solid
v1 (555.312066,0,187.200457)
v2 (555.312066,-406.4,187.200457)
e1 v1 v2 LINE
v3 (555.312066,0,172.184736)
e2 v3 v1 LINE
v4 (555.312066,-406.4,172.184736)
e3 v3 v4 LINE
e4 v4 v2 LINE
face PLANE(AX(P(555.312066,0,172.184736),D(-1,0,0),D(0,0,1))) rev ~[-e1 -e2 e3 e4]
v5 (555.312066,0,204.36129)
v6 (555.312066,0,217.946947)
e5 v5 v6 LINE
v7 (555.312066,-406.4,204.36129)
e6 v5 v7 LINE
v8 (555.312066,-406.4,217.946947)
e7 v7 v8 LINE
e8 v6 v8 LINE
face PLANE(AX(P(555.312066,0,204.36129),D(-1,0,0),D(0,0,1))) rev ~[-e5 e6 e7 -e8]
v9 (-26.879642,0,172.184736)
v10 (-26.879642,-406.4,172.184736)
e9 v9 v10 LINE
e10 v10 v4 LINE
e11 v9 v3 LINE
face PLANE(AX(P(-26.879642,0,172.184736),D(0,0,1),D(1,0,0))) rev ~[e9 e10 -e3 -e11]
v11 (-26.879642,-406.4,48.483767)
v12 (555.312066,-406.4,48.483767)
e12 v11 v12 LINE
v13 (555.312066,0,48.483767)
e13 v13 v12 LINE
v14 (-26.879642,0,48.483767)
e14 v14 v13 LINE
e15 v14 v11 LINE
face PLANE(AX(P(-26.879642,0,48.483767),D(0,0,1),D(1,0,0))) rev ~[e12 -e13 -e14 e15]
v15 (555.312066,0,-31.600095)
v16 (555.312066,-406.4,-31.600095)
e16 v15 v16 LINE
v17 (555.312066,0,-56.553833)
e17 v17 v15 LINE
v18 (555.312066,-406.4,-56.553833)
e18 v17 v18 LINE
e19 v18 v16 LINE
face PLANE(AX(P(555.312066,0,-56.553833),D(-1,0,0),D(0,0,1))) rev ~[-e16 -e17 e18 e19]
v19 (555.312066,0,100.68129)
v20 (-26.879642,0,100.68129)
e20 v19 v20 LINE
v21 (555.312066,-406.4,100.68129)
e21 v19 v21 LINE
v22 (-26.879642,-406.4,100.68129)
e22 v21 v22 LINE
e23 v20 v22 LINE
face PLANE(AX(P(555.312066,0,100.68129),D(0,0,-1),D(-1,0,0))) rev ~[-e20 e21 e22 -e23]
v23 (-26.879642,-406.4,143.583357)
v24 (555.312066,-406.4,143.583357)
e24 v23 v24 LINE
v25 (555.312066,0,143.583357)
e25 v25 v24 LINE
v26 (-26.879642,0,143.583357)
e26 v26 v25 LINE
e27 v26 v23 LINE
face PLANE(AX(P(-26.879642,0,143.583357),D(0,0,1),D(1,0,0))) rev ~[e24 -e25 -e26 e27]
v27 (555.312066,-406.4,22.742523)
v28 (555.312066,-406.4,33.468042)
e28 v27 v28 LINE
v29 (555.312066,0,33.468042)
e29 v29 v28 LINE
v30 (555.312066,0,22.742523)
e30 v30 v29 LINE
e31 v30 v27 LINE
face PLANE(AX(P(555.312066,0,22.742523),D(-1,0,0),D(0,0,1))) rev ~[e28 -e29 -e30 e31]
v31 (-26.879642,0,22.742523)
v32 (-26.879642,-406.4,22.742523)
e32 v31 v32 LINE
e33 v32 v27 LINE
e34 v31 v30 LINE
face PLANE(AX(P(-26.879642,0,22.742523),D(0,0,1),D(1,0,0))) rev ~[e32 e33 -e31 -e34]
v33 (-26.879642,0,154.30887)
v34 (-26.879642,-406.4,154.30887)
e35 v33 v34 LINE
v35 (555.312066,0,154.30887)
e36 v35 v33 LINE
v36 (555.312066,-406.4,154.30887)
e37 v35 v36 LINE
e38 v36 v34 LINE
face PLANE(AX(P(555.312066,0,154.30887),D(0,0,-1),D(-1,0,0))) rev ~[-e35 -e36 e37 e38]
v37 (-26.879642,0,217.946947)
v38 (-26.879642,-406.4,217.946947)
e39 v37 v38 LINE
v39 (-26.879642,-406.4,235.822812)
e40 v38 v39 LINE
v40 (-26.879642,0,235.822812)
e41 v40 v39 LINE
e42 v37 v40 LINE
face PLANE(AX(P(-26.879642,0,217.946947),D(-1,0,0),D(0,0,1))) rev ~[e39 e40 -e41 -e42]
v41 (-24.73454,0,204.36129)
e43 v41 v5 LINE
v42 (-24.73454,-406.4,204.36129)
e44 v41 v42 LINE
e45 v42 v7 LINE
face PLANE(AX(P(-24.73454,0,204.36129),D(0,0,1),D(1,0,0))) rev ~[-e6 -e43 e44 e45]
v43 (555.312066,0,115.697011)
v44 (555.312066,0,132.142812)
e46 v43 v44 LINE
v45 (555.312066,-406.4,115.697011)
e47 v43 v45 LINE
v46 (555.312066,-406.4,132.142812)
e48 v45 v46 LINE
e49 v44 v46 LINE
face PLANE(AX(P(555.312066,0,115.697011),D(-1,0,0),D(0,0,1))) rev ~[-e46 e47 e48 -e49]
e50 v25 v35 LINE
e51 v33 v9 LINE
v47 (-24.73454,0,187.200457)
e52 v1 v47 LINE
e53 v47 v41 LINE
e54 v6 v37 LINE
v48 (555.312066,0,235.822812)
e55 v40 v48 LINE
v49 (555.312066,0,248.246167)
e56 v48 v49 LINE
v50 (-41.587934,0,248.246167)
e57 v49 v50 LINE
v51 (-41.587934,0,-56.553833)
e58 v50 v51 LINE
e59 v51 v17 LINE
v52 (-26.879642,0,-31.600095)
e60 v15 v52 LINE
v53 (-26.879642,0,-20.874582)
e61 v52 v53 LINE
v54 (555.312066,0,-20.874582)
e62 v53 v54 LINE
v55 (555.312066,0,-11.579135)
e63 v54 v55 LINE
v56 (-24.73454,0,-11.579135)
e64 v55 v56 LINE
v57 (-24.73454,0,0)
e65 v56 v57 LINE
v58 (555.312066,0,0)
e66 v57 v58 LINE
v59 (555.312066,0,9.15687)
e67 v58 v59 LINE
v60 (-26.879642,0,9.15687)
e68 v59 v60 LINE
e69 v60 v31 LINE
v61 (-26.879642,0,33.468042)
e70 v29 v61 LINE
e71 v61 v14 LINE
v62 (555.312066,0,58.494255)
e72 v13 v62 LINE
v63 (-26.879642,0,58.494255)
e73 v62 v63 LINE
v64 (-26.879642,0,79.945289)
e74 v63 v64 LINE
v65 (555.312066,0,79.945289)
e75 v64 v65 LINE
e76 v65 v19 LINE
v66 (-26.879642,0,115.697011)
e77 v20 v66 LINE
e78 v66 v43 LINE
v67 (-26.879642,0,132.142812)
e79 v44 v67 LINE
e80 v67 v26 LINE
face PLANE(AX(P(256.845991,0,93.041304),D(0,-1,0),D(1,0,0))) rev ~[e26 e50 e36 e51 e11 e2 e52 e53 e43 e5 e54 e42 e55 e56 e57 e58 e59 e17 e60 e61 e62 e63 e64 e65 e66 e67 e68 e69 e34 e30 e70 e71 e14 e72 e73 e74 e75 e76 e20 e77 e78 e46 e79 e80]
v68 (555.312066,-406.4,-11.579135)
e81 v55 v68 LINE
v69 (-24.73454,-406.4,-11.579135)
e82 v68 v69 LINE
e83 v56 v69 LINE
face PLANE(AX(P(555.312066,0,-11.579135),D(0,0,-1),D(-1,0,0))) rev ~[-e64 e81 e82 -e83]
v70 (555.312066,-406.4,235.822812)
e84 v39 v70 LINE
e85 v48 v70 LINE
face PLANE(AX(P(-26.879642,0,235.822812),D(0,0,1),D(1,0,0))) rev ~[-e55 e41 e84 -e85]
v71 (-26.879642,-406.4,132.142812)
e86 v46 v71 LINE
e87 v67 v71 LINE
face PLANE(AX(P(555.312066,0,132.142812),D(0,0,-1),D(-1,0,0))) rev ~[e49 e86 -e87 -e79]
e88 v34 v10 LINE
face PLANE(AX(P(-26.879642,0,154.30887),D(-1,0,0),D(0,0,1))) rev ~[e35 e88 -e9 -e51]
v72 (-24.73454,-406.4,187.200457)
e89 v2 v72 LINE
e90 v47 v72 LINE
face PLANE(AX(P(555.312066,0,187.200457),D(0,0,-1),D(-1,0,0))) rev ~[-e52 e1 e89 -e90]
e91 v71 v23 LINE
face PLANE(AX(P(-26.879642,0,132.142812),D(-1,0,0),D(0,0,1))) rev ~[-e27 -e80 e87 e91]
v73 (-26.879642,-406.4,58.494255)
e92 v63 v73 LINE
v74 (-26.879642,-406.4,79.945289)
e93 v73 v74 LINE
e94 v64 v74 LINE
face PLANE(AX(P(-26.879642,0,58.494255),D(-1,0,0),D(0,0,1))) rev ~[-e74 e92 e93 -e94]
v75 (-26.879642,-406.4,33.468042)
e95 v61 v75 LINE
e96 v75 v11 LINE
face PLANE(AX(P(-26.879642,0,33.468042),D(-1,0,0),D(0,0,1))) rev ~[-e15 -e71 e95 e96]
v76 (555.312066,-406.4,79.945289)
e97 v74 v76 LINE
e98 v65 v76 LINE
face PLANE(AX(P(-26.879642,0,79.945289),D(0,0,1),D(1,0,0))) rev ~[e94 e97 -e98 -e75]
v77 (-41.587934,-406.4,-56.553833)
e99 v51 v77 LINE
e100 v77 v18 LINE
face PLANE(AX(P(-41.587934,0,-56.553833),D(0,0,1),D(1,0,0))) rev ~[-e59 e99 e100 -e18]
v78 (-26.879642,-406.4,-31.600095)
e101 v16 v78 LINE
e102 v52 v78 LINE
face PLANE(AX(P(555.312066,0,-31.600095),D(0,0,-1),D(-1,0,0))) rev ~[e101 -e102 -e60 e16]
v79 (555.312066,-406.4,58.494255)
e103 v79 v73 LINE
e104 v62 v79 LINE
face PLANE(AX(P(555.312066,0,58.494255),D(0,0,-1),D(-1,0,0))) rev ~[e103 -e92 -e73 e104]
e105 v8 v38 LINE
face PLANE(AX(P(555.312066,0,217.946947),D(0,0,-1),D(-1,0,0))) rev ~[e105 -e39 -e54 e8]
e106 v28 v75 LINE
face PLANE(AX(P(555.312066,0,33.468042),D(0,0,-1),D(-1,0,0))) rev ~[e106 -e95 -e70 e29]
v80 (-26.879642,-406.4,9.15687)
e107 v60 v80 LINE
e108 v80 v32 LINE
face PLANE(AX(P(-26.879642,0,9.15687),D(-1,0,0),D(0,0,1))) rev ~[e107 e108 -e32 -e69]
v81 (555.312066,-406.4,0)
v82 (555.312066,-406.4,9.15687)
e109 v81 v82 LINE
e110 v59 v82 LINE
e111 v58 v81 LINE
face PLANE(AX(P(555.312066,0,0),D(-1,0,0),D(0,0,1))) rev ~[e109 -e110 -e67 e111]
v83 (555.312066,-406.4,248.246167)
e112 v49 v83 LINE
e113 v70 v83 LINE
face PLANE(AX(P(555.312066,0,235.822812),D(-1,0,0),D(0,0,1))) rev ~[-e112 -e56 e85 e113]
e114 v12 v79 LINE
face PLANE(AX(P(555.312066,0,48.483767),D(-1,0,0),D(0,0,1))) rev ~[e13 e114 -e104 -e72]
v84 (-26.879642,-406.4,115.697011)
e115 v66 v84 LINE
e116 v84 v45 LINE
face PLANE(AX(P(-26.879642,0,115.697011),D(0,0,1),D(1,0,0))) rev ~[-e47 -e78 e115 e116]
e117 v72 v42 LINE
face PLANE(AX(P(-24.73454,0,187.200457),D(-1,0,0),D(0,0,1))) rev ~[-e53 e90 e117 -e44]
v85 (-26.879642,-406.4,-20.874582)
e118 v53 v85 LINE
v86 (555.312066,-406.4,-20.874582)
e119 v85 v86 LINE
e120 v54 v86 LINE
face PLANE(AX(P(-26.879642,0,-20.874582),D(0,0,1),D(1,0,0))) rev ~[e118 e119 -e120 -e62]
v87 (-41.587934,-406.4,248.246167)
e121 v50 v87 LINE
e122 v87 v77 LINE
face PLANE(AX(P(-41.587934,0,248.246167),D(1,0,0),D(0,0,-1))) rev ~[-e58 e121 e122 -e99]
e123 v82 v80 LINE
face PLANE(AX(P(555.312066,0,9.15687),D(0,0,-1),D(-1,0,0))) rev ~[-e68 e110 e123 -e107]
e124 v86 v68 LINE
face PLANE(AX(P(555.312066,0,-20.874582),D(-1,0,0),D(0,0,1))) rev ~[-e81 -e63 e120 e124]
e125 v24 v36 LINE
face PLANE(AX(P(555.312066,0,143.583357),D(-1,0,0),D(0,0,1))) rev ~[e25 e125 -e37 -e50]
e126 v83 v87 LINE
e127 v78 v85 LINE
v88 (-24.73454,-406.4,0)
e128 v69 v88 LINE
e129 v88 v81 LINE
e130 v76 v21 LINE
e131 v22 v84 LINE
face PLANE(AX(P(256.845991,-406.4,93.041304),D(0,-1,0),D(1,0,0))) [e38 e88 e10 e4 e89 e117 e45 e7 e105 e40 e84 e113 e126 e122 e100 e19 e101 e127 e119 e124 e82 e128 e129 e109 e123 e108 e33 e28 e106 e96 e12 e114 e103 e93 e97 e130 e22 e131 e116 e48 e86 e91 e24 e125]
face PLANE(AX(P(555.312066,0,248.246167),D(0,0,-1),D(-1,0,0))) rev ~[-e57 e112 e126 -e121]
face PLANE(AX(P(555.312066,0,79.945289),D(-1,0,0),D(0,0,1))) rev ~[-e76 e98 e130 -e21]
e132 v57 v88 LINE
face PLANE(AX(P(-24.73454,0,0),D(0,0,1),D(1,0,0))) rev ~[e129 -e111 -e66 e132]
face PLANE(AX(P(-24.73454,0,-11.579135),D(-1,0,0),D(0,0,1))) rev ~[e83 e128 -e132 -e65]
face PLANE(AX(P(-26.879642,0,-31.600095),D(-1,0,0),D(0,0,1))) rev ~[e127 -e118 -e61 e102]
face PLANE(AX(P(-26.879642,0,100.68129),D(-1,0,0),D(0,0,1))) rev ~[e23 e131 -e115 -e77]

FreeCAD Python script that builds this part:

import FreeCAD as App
import Part
import Sketcher

V = App.Vector
Q = App.Units.Quantity

doc = App.newDocument("Part")
body = doc.addObject("PartDesign::Body", "Body")

# Sketch on XZ plane
sketch1 = doc.addObject("Sketcher::SketchObject", "Sketch")
body.addObject(sketch1)
sketch1.AttachmentSupport = (doc.XZ_Plane, [""])
sketch1.MapMode = "FlatFace"
sketch1.addGeometry([
    Part.LineSegment(V(555.312066, 248.246167, 0), V(-41.587934, 248.246167, 0)),  # 0
    Part.LineSegment(V(-41.587934, 248.246167, 0), V(-41.587934, -56.553833, 0)),  # 1
    Part.LineSegment(V(-41.587934, -56.553833, 0), V(555.312066, -56.553833, 0)),  # 2
    Part.LineSegment(V(555.312066, -56.553833, 0), V(555.312066, -31.600095, 0)),  # 3
    Part.LineSegment(V(555.312066, -31.600095, 0), V(-26.879642, -31.600095, 0)),  # 4
    Part.LineSegment(V(-26.879642, -31.600095, 0), V(-26.879642, -20.874582, 0)),  # 5
    Part.LineSegment(V(-26.879642, -20.874582, 0), V(555.312066, -20.874582, 0)),  # 6
    Part.LineSegment(V(555.312066, -20.874582, 0), V(555.312066, -11.579135, 0)),  # 7
    Part.LineSegment(V(555.312066, -11.579135, 0), V(-24.73454, -11.579135, 0)),  # 8
    Part.LineSegment(V(-24.73454, -11.579135, 0), V(-24.73454, 0, 0)),  # 9
    Part.LineSegment(V(-24.73454, 0, 0), V(555.312066, 0, 0)),  # 10
    Part.LineSegment(V(555.312066, 0, 0), V(555.312066, 9.15687, 0)),  # 11
    Part.LineSegment(V(555.312066, 9.15687, 0), V(-26.879642, 9.15687, 0)),  # 12
    Part.LineSegment(V(-26.879642, 9.15687, 0), V(-26.879642, 22.742523, 0)),  # 13
    Part.LineSegment(V(-26.879642, 22.742523, 0), V(555.312066, 22.742523, 0)),  # 14
    Part.LineSegment(V(555.312066, 22.742523, 0), V(555.312066, 33.468042, 0)),  # 15
    Part.LineSegment(V(555.312066, 33.468042, 0), V(-26.879642, 33.468042, 0)),  # 16
    Part.LineSegment(V(-26.879642, 33.468042, 0), V(-26.879642, 48.483767, 0)),  # 17
    Part.LineSegment(V(-26.879642, 48.483767, 0), V(555.312066, 48.483767, 0)),  # 18
    Part.LineSegment(V(555.312066, 48.483767, 0), V(555.312066, 58.494255, 0)),  # 19
    Part.LineSegment(V(555.312066, 58.494255, 0), V(-26.879642, 58.494255, 0)),  # 20
    Part.LineSegment(V(-26.879642, 58.494255, 0), V(-26.879642, 79.945289, 0)),  # 21
    Part.LineSegment(V(-26.879642, 79.945289, 0), V(555.312066, 79.945289, 0)),  # 22
    Part.LineSegment(V(555.312066, 79.945289, 0), V(555.312066, 100.68129, 0)),  # 23
    Part.LineSegment(V(555.312066, 100.68129, 0), V(-26.879642, 100.68129, 0)),  # 24
    Part.LineSegment(V(-26.879642, 100.68129, 0), V(-26.879642, 115.697011, 0)),  # 25
    Part.LineSegment(V(-26.879642, 115.697011, 0), V(555.312066, 115.697011, 0)),  # 26
    Part.LineSegment(V(555.312066, 115.697011, 0), V(555.312066, 132.142812, 0)),  # 27
    Part.LineSegment(V(555.312066, 132.142812, 0), V(-26.879642, 132.142812, 0)),  # 28
    Part.LineSegment(V(-26.879642, 132.142812, 0), V(-26.879642, 143.583357, 0)),  # 29
    Part.LineSegment(V(-26.879642, 143.583357, 0), V(555.312066, 143.583357, 0)),  # 30
    Part.LineSegment(V(555.312066, 143.583357, 0), V(555.312066, 154.30887, 0)),  # 31
    Part.LineSegment(V(555.312066, 154.30887, 0), V(-26.879642, 154.30887, 0)),  # 32
    Part.LineSegment(V(-26.879642, 154.30887, 0), V(-26.879642, 172.184736, 0)),  # 33
    Part.LineSegment(V(-26.879642, 172.184736, 0), V(555.312066, 172.184736, 0)),  # 34
    Part.LineSegment(V(555.312066, 172.184736, 0), V(555.312066, 187.200457, 0)),  # 35
    Part.LineSegment(V(555.312066, 187.200457, 0), V(-24.73454, 187.200457, 0)),  # 36
    Part.LineSegment(V(-24.73454, 187.200457, 0), V(-24.73454, 204.36129, 0)),  # 37
    Part.LineSegment(V(-24.73454, 204.36129, 0), V(555.312066, 204.36129, 0)),  # 38
    Part.LineSegment(V(555.312066, 204.36129, 0), V(555.312066, 217.946947, 0)),  # 39
    Part.LineSegment(V(555.312066, 217.946947, 0), V(-26.879642, 217.946947, 0)),  # 40
    Part.LineSegment(V(-26.879642, 217.946947, 0), V(-26.879642, 235.822812, 0)),  # 41
    Part.LineSegment(V(-26.879642, 235.822812, 0), V(555.312066, 235.822812, 0)),  # 42
    Part.LineSegment(V(555.312066, 235.822812, 0), V(555.312066, 248.246167, 0)),  # 43
], False)
sketch1.addConstraint([
    Sketcher.Constraint("Coincident", 0, 2, 1, 1),
    Sketcher.Constraint("Coincident", 1, 2, 2, 1),
    Sketcher.Constraint("Coincident", 2, 2, 3, 1),
    Sketcher.Constraint("Coincident", 3, 2, 4, 1),
    Sketcher.Constraint("Coincident", 4, 2, 5, 1),
    Sketcher.Constraint("Coincident", 5, 2, 6, 1),
    Sketcher.Constraint("Coincident", 6, 2, 7, 1),
    Sketcher.Constraint("Coincident", 7, 2, 8, 1),
    Sketcher.Constraint("Coincident", 8, 2, 9, 1),
    Sketcher.Constraint("Coincident", 9, 2, 10, 1),
    Sketcher.Constraint("Coincident", 10, 2, 11, 1),
    Sketcher.Constraint("Coincident", 11, 2, 12, 1),
    Sketcher.Constraint("Coincident", 12, 2, 13, 1),
    Sketcher.Constraint("Coincident", 13, 2, 14, 1),
    Sketcher.Constraint("Coincident", 14, 2, 15, 1),
    Sketcher.Constraint("Coincident", 15, 2, 16, 1),
    Sketcher.Constraint("Coincident", 16, 2, 17, 1),
    Sketcher.Constraint("Coincident", 17, 2, 18, 1),
    Sketcher.Constraint("Coincident", 18, 2, 19, 1),
    Sketcher.Constraint("Coincident", 19, 2, 20, 1),
    Sketcher.Constraint("Coincident", 20, 2, 21, 1),
    Sketcher.Constraint("Coincident", 21, 2, 22, 1),
    Sketcher.Constraint("Coincident", 22, 2, 23, 1),
    Sketcher.Constraint("Coincident", 23, 2, 24, 1),
    Sketcher.Constraint("Coincident", 24, 2, 25, 1),
    Sketcher.Constraint("Coincident", 25, 2, 26, 1),
    Sketcher.Constraint("Coincident", 26, 2, 27, 1),
    Sketcher.Constraint("Coincident", 27, 2, 28, 1),
    Sketcher.Constraint("Coincident", 28, 2, 29, 1),
    Sketcher.Constraint("Coincident", 29, 2, 30, 1),
    Sketcher.Constraint("Coincident", 30, 2, 31, 1),
    Sketcher.Constraint("Coincident", 31, 2, 32, 1),
    Sketcher.Constraint("Coincident", 32, 2, 33, 1),
    Sketcher.Constraint("Coincident", 33, 2, 34, 1),
    Sketcher.Constraint("Coincident", 34, 2, 35, 1),
    Sketcher.Constraint("Coincident", 35, 2, 36, 1),
    Sketcher.Constraint("Coincident", 36, 2, 37, 1),
    Sketcher.Constraint("Coincident", 37, 2, 38, 1),
    Sketcher.Constraint("Coincident", 38, 2, 39, 1),
    Sketcher.Constraint("Coincident", 39, 2, 40, 1),
    Sketcher.Constraint("Coincident", 40, 2, 41, 1),
    Sketcher.Constraint("Coincident", 41, 2, 42, 1),
    Sketcher.Constraint("Coincident", 42, 2, 43, 1),
    Sketcher.Constraint("Coincident", 43, 2, 0, 1),
    Sketcher.Constraint("Horizontal", 0),
    Sketcher.Constraint("Vertical", 1),
    Sketcher.Constraint("Horizontal", 2),
    Sketcher.Constraint("Vertical", 3),
    Sketcher.Constraint("Horizontal", 4),
    Sketcher.Constraint("Vertical", 5),
    Sketcher.Constraint("Horizontal", 6),
    Sketcher.Constraint("Vertical", 7),
    Sketcher.Constraint("Horizontal", 8),
    Sketcher.Constraint("Vertical", 9),
    Sketcher.Constraint("Horizontal", 10),
    Sketcher.Constraint("Vertical", 11),
    Sketcher.Constraint("Horizontal", 12),
    Sketcher.Constraint("Vertical", 13),
    Sketcher.Constraint("Horizontal", 14),
    Sketcher.Constraint("Vertical", 15),
    Sketcher.Constraint("Horizontal", 16),
    Sketcher.Constraint("Vertical", 17),
    Sketcher.Constraint("Horizontal", 18),
    Sketcher.Constraint("Vertical", 19),
    Sketcher.Constraint("Horizontal", 20),
    Sketcher.Constraint("Vertical", 21),
    Sketcher.Constraint("Horizontal", 22),
    Sketcher.Constraint("Vertical", 23),
    Sketcher.Constraint("Horizontal", 24),
    Sketcher.Constraint("Vertical", 25),
    Sketcher.Constraint("Horizontal", 26),
    Sketcher.Constraint("Vertical", 27),
    Sketcher.Constraint("Horizontal", 28),
    Sketcher.Constraint("Vertical", 29),
    Sketcher.Constraint("Horizontal", 30),
    Sketcher.Constraint("Vertical", 31),
    Sketcher.Constraint("Horizontal", 32),
    Sketcher.Constraint("Vertical", 33),
    Sketcher.Constraint("Horizontal", 34),
    Sketcher.Constraint("Vertical", 35),
    Sketcher.Constraint("Horizontal", 36),
    Sketcher.Constraint("Vertical", 37),
    Sketcher.Constraint("Horizontal", 38),
    Sketcher.Constraint("Vertical", 39),
    Sketcher.Constraint("Horizontal", 40),
    Sketcher.Constraint("Vertical", 41),
    Sketcher.Constraint("Horizontal", 42),
    Sketcher.Constraint("Vertical", 43),
    Sketcher.Constraint("PointOnObject", 9, 2, -1),
    Sketcher.Constraint("Vertical", 3, 2, 6, 2),
    Sketcher.Constraint("Vertical", 7, 2, 10, 2),
    Sketcher.Constraint("Vertical", 5, 2, 12, 2),
    Sketcher.Constraint("Vertical", 11, 2, 14, 2),
    Sketcher.Constraint("Vertical", 13, 2, 16, 2),
    Sketcher.Constraint("Vertical", 15, 2, 18, 2),
    Sketcher.Constraint("Vertical", 17, 2, 20, 2),
    Sketcher.Constraint("Vertical", 19, 2, 22, 2),
    Sketcher.Constraint("Vertical", 21, 2, 24, 2),
    Sketcher.Constraint("Vertical", 23, 2, 26, 2),
    Sketcher.Constraint("Vertical", 25, 2, 28, 2),
    Sketcher.Constraint("Vertical", 27, 2, 30, 2),
    Sketcher.Constraint("Vertical", 29, 2, 32, 2),
    Sketcher.Constraint("Vertical", 31, 2, 34, 2),
    Sketcher.Constraint("Vertical", 9, 2, 36, 2),
    Sketcher.Constraint("Vertical", 35, 2, 38, 2),
    Sketcher.Constraint("Vertical", 33, 2, 40, 2),
    Sketcher.Constraint("Vertical", 39, 2, 42, 2),
    Sketcher.Constraint("Equal", 5, 31),
    Sketcher.Constraint("Equal", 25, 35),
    Sketcher.Constraint("Equal", 33, 41),
    Sketcher.Constraint("DistanceY", 1, 2, 1, 1, Q("12 in")),
    Sketcher.Constraint("DistanceX", 0, 2, 0, 1, Q("23.5 in")),
    Sketcher.Constraint("DistanceY", 23, 1, 23, 2, Q("20.736001 mm")),
    Sketcher.Constraint("DistanceY", 27, 1, 27, 2, Q("16.445801 mm")),
    Sketcher.Constraint("DistanceY", 22, 2, 31, 2, Q("2.9277 in")),
    Sketcher.Constraint("DistanceX", 4, 2, 4, 1, Q("582.191708 mm")),
    Sketcher.Constraint("DistanceY", 11, 1, 11, 2, Q("9.15687 mm")),
    Sketcher.Constraint("DistanceY", 15, 1, 15, 2, Q("10.725519 mm")),
    Sketcher.Constraint("DistanceY", 19, 1, 19, 2, Q("10.010488 mm")),
    Sketcher.Constraint("DistanceY", 25, 1, 25, 2, Q("15.015721 mm")),
    Sketcher.Constraint("DistanceY", 8, 2, 0, 2, Q("259.825302 mm")),
    Sketcher.Constraint("DistanceY", 20, 2, 29, 2, Q("85.089102 mm")),
    Sketcher.Constraint("DistanceY", 30, 2, 35, 2, Q("43.6171 mm")),
    Sketcher.Constraint("DistanceX", 8, 2, 8, 1, Q("580.046606 mm")),
    Sketcher.Constraint("DistanceY", 3, 1, 3, 2, Q("24.953738 mm")),
    Sketcher.Constraint("DistanceY", 5, 1, 5, 2, Q("10.725513 mm")),
    Sketcher.Constraint("DistanceY", 9, 1, 9, 2, Q("11.579135 mm")),
    Sketcher.Constraint("DistanceY", 13, 1, 13, 2, Q("13.585653 mm")),
    Sketcher.Constraint("DistanceY", 17, 1, 17, 2, Q("15.015725 mm")),
    Sketcher.Constraint("DistanceY", 37, 1, 37, 2, Q("17.160833 mm")),
    Sketcher.Constraint("DistanceY", 39, 1, 39, 2, Q("13.585657 mm")),
    Sketcher.Constraint("DistanceX", 8, 2, -1, 1, Q("24.73454 mm")),
])
pad1 = doc.addObject("PartDesign::Pad", "Pad")
body.addObject(pad1)
pad1.Profile = sketch1
pad1.Length = Q("16 in")

doc.recompute()
